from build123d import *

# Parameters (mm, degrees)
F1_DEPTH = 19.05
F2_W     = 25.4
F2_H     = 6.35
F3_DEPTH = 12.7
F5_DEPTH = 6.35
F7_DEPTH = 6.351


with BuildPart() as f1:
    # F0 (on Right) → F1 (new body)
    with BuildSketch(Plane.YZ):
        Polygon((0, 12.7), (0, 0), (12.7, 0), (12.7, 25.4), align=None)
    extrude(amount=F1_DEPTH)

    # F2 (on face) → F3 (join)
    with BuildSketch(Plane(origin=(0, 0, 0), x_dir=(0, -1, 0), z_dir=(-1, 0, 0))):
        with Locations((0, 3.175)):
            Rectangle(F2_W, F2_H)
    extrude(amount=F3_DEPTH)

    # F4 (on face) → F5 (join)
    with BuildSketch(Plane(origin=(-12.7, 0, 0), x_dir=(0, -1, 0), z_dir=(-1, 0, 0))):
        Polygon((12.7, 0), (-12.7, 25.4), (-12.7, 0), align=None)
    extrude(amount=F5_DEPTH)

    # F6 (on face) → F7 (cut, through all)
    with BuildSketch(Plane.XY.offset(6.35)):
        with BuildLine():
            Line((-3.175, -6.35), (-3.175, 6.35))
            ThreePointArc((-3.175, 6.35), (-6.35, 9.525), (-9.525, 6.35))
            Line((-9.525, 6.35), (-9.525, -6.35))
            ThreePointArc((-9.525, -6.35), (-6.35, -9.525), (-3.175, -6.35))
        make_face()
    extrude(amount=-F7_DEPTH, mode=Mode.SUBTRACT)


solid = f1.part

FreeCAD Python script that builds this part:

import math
import FreeCAD as App
import Part
import Sketcher
Q = App.Units.Quantity

doc = App.newDocument("Part")
params = doc.addObject("Spreadsheet::Sheet", "Params")
for row, (alias, value) in enumerate([
    ("sketch1_height", "1 in"),
    ("sketch1_width", "0.5 in"),
    ("pad1_length", "0.75 in"),
    ("sketch2_width", "1 in"),
    ("sketch2_height", "0.25 in"),
    ("pad2_length", "0.5 in"),
    ("sketch3_width", "1 in"),
    ("pad3_length", "0.25 in"),
    ("sketch4_height", "0.5 in"),
    ("sketch4_radius", "0.125 in"),
], start=1):
    params.set(f"A{row}", alias)
    params.set(f"B{row}", "=" + value)
    params.setAlias(f"B{row}", alias)

body = doc.addObject("PartDesign::Body", "Body")

sketch1 = doc.addObject("Sketcher::SketchObject", "Sketch")
body.addObject(sketch1)
sketch1.AttachmentSupport = (doc.YZ_Plane, [""])
sketch1.MapMode = "FlatFace"
sketch1.addGeometry(Part.LineSegment(App.Vector(0, 13, 0), App.Vector(0, 0, 0)), False)
sketch1.addGeometry(Part.LineSegment(App.Vector(0, 0, 0), App.Vector(13, 0, 0)), False)
sketch1.addGeometry(Part.LineSegment(App.Vector(13, 0, 0), App.Vector(13, 25, 0)), False)
sketch1.addGeometry(Part.LineSegment(App.Vector(13, 25, 0), App.Vector(0, 13, 0)), False)
sketch1.addConstraint(Sketcher.Constraint("Coincident", 0, 2, 1, 1))
sketch1.addConstraint(Sketcher.Constraint("Coincident", 1, 2, 2, 1))
sketch1.addConstraint(Sketcher.Constraint("Coincident", 2, 2, 3, 1))
sketch1.addConstraint(Sketcher.Constraint("Coincident", 3, 2, 0, 1))
sketch1.addConstraint(Sketcher.Constraint("Vertical", 0))
sketch1.addConstraint(Sketcher.Constraint("Horizontal", 1))
sketch1.addConstraint(Sketcher.Constraint("Vertical", 2))
sketch1.addConstraint(Sketcher.Constraint("Coincident", 0, 2, -1, 1))
sketch1.addConstraint(Sketcher.Constraint("Equal", 1, 0))
sketch1.addConstraint(Sketcher.Constraint("DistanceY", 2, 1, 2, 2, Q("1 in")))
sketch1.addConstraint(Sketcher.Constraint("DistanceX", 1, 1, 1, 2, Q("0.5 in")))
sketch1.setExpression("Constraints[9]", "Params.sketch1_height")
sketch1.setExpression("Constraints[10]", "Params.sketch1_width")
pad1 = doc.addObject("PartDesign::Pad", "Pad")
body.addObject(pad1)
pad1.Profile = sketch1
pad1.setExpression("Length", "Params.pad1_length")

sketch2 = doc.addObject("Sketcher::SketchObject", "Sketch001")
body.addObject(sketch2)
sketch2.AttachmentSupport = (doc.YZ_Plane, [""])
sketch2.MapMode = "FlatFace"
sketch2.addGeometry(Part.LineSegment(App.Vector(13, 6, 0), App.Vector(13, 0, 0)), False)
sketch2.addGeometry(Part.LineSegment(App.Vector(13, 0, 0), App.Vector(-13, 0, 0)), False)
sketch2.addGeometry(Part.LineSegment(App.Vector(-13, 0, 0), App.Vector(-13, 6, 0)), False)
sketch2.addGeometry(Part.LineSegment(App.Vector(-13, 6, 0), App.Vector(13, 6, 0)), False)
sketch2.addConstraint(Sketcher.Constraint("Coincident", 0, 2, 1, 1))
sketch2.addConstraint(Sketcher.Constraint("Coincident", 1, 2, 2, 1))
sketch2.addConstraint(Sketcher.Constraint("Coincident", 2, 2, 3, 1))
sketch2.addConstraint(Sketcher.Constraint("Coincident", 3, 2, 0, 1))
sketch2.addConstraint(Sketcher.Constraint("Vertical", 0))
sketch2.addConstraint(Sketcher.Constraint("Horizontal", 1))
sketch2.addConstraint(Sketcher.Constraint("Vertical", 2))
sketch2.addConstraint(Sketcher.Constraint("Horizontal", 3))
sketch2.addConstraint(Sketcher.Constraint("Symmetric", 0, 2, 1, 2, -1, 1))
sketch2.addConstraint(Sketcher.Constraint("DistanceX", 1, 2, 1, 1, Q("1 in")))
sketch2.addConstraint(Sketcher.Constraint("DistanceY", 0, 2, 0, 1, Q("0.25 in")))
sketch2.setExpression("Constraints[9]", "Params.sketch2_width")
sketch2.setExpression("Constraints[10]", "Params.sketch2_height")
pad2 = doc.addObject("PartDesign::Pad", "Pad001")
body.addObject(pad2)
pad2.Profile = sketch2
pad2.setExpression("Length", "Params.pad2_length")
pad2.Reversed = True

sketch3 = doc.addObject("Sketcher::SketchObject", "Sketch002")
body.addObject(sketch3)
sketch3.AttachmentSupport = (doc.YZ_Plane, [""])
sketch3.MapMode = "FlatFace"
sketch3.AttachmentOffset = App.Placement(App.Vector(0, 0, -0.5 * 25.4), App.Rotation())
sketch3.addGeometry(Part.LineSegment(App.Vector(-13, 0, 0), App.Vector(13, 25, 0)), False)
sketch3.addGeometry(Part.LineSegment(App.Vector(13, 25, 0), App.Vector(13, 0, 0)), False)
sketch3.addGeometry(Part.LineSegment(App.Vector(13, 0, 0), App.Vector(-13, 0, 0)), False)
sketch3.addConstraint(Sketcher.Constraint("Coincident", 0, 2, 1, 1))
sketch3.addConstraint(Sketcher.Constraint("Coincident", 1, 2, 2, 1))
sketch3.addConstraint(Sketcher.Constraint("Coincident", 2, 2, 0, 1))
sketch3.addConstraint(Sketcher.Constraint("Vertical", 1))
sketch3.addConstraint(Sketcher.Constraint("Horizontal", 2))
sketch3.addConstraint(Sketcher.Constraint("Symmetric", 1, 2, 2, 2, -1, 1))
sketch3.addConstraint(Sketcher.Constraint("Equal", 2, 1))
sketch3.addConstraint(Sketcher.Constraint("DistanceX", 2, 2, 2, 1, Q("1 in")))
sketch3.setExpression("Constraints[7]", "Params.sketch3_width")
pad3 = doc.addObject("PartDesign::Pad", "Pad002")
body.addObject(pad3)
pad3.Profile = sketch3
pad3.setExpression("Length", "Params.pad3_length")
pad3.Reversed = True

sketch4 = doc.addObject("Sketcher::SketchObject", "Sketch003")
body.addObject(sketch4)
sketch4.AttachmentSupport = (doc.XY_Plane, [""])
sketch4.MapMode = "FlatFace"
sketch4.AttachmentOffset = App.Placement(App.Vector(0, 0, 0.25 * 25.4), App.Rotation())
sketch4.addGeometry(Part.LineSegment(App.Vector(-3.2, -6.3, 0), App.Vector(-3.2, 6.3, 0)), False)
sketch4.addGeometry(Part.ArcOfCircle(Part.Circle(App.Vector(-6.3, 6.3, 0), App.Vector(0, 0, 1), 3.2), math.radians(0), math.radians(180)), False)
sketch4.addGeometry(Part.LineSegment(App.Vector(-9.5, 6.3, 0), App.Vector(-9.5, -6.3, 0)), False)
sketch4.addGeometry(Part.ArcOfCircle(Part.Circle(App.Vector(-6.3, -6.3, 0), App.Vector(0, 0, 1), 3.2), math.radians(180), math.radians(360)), False)
sketch4.addConstraint(Sketcher.Constraint("Tangent", 0, 2, 1, 1))
sketch4.addConstraint(Sketcher.Constraint("Tangent", 1, 2, 2, 1))
sketch4.addConstraint(Sketcher.Constraint("Tangent", 2, 2, 3, 1))
sketch4.addConstraint(Sketcher.Constraint("Tangent", 3, 2, 0, 1))
sketch4.addConstraint(Sketcher.Constraint("Vertical", 0))
sketch4.addConstraint(Sketcher.Constraint("Vertical", 2))
sketch4.addConstraint(Sketcher.Constraint("DistanceY", 0, 1, 0, 2, Q("0.5 in")))
sketch4.addConstraint(Sketcher.Constraint("Radius", 1, Q("0.125 in")))
sketch4.addConstraint(Sketcher.Constraint("DistanceX", 1, 3, -1, 1, Q("0.25 in")))
sketch4.addConstraint(Sketcher.Constraint("DistanceY", -1, 1, 1, 3, Q("0.25 in")))
sketch4.setExpression("Constraints[6]", "Params.sketch4_height")
sketch4.setExpression("Constraints[7]", "Params.sketch4_radius")
pocket1 = doc.addObject("PartDesign::Pocket", "Pocket")
body.addObject(pocket1)
pocket1.Profile = sketch4
pocket1.Type = "ThroughAll"

doc.recompute()
